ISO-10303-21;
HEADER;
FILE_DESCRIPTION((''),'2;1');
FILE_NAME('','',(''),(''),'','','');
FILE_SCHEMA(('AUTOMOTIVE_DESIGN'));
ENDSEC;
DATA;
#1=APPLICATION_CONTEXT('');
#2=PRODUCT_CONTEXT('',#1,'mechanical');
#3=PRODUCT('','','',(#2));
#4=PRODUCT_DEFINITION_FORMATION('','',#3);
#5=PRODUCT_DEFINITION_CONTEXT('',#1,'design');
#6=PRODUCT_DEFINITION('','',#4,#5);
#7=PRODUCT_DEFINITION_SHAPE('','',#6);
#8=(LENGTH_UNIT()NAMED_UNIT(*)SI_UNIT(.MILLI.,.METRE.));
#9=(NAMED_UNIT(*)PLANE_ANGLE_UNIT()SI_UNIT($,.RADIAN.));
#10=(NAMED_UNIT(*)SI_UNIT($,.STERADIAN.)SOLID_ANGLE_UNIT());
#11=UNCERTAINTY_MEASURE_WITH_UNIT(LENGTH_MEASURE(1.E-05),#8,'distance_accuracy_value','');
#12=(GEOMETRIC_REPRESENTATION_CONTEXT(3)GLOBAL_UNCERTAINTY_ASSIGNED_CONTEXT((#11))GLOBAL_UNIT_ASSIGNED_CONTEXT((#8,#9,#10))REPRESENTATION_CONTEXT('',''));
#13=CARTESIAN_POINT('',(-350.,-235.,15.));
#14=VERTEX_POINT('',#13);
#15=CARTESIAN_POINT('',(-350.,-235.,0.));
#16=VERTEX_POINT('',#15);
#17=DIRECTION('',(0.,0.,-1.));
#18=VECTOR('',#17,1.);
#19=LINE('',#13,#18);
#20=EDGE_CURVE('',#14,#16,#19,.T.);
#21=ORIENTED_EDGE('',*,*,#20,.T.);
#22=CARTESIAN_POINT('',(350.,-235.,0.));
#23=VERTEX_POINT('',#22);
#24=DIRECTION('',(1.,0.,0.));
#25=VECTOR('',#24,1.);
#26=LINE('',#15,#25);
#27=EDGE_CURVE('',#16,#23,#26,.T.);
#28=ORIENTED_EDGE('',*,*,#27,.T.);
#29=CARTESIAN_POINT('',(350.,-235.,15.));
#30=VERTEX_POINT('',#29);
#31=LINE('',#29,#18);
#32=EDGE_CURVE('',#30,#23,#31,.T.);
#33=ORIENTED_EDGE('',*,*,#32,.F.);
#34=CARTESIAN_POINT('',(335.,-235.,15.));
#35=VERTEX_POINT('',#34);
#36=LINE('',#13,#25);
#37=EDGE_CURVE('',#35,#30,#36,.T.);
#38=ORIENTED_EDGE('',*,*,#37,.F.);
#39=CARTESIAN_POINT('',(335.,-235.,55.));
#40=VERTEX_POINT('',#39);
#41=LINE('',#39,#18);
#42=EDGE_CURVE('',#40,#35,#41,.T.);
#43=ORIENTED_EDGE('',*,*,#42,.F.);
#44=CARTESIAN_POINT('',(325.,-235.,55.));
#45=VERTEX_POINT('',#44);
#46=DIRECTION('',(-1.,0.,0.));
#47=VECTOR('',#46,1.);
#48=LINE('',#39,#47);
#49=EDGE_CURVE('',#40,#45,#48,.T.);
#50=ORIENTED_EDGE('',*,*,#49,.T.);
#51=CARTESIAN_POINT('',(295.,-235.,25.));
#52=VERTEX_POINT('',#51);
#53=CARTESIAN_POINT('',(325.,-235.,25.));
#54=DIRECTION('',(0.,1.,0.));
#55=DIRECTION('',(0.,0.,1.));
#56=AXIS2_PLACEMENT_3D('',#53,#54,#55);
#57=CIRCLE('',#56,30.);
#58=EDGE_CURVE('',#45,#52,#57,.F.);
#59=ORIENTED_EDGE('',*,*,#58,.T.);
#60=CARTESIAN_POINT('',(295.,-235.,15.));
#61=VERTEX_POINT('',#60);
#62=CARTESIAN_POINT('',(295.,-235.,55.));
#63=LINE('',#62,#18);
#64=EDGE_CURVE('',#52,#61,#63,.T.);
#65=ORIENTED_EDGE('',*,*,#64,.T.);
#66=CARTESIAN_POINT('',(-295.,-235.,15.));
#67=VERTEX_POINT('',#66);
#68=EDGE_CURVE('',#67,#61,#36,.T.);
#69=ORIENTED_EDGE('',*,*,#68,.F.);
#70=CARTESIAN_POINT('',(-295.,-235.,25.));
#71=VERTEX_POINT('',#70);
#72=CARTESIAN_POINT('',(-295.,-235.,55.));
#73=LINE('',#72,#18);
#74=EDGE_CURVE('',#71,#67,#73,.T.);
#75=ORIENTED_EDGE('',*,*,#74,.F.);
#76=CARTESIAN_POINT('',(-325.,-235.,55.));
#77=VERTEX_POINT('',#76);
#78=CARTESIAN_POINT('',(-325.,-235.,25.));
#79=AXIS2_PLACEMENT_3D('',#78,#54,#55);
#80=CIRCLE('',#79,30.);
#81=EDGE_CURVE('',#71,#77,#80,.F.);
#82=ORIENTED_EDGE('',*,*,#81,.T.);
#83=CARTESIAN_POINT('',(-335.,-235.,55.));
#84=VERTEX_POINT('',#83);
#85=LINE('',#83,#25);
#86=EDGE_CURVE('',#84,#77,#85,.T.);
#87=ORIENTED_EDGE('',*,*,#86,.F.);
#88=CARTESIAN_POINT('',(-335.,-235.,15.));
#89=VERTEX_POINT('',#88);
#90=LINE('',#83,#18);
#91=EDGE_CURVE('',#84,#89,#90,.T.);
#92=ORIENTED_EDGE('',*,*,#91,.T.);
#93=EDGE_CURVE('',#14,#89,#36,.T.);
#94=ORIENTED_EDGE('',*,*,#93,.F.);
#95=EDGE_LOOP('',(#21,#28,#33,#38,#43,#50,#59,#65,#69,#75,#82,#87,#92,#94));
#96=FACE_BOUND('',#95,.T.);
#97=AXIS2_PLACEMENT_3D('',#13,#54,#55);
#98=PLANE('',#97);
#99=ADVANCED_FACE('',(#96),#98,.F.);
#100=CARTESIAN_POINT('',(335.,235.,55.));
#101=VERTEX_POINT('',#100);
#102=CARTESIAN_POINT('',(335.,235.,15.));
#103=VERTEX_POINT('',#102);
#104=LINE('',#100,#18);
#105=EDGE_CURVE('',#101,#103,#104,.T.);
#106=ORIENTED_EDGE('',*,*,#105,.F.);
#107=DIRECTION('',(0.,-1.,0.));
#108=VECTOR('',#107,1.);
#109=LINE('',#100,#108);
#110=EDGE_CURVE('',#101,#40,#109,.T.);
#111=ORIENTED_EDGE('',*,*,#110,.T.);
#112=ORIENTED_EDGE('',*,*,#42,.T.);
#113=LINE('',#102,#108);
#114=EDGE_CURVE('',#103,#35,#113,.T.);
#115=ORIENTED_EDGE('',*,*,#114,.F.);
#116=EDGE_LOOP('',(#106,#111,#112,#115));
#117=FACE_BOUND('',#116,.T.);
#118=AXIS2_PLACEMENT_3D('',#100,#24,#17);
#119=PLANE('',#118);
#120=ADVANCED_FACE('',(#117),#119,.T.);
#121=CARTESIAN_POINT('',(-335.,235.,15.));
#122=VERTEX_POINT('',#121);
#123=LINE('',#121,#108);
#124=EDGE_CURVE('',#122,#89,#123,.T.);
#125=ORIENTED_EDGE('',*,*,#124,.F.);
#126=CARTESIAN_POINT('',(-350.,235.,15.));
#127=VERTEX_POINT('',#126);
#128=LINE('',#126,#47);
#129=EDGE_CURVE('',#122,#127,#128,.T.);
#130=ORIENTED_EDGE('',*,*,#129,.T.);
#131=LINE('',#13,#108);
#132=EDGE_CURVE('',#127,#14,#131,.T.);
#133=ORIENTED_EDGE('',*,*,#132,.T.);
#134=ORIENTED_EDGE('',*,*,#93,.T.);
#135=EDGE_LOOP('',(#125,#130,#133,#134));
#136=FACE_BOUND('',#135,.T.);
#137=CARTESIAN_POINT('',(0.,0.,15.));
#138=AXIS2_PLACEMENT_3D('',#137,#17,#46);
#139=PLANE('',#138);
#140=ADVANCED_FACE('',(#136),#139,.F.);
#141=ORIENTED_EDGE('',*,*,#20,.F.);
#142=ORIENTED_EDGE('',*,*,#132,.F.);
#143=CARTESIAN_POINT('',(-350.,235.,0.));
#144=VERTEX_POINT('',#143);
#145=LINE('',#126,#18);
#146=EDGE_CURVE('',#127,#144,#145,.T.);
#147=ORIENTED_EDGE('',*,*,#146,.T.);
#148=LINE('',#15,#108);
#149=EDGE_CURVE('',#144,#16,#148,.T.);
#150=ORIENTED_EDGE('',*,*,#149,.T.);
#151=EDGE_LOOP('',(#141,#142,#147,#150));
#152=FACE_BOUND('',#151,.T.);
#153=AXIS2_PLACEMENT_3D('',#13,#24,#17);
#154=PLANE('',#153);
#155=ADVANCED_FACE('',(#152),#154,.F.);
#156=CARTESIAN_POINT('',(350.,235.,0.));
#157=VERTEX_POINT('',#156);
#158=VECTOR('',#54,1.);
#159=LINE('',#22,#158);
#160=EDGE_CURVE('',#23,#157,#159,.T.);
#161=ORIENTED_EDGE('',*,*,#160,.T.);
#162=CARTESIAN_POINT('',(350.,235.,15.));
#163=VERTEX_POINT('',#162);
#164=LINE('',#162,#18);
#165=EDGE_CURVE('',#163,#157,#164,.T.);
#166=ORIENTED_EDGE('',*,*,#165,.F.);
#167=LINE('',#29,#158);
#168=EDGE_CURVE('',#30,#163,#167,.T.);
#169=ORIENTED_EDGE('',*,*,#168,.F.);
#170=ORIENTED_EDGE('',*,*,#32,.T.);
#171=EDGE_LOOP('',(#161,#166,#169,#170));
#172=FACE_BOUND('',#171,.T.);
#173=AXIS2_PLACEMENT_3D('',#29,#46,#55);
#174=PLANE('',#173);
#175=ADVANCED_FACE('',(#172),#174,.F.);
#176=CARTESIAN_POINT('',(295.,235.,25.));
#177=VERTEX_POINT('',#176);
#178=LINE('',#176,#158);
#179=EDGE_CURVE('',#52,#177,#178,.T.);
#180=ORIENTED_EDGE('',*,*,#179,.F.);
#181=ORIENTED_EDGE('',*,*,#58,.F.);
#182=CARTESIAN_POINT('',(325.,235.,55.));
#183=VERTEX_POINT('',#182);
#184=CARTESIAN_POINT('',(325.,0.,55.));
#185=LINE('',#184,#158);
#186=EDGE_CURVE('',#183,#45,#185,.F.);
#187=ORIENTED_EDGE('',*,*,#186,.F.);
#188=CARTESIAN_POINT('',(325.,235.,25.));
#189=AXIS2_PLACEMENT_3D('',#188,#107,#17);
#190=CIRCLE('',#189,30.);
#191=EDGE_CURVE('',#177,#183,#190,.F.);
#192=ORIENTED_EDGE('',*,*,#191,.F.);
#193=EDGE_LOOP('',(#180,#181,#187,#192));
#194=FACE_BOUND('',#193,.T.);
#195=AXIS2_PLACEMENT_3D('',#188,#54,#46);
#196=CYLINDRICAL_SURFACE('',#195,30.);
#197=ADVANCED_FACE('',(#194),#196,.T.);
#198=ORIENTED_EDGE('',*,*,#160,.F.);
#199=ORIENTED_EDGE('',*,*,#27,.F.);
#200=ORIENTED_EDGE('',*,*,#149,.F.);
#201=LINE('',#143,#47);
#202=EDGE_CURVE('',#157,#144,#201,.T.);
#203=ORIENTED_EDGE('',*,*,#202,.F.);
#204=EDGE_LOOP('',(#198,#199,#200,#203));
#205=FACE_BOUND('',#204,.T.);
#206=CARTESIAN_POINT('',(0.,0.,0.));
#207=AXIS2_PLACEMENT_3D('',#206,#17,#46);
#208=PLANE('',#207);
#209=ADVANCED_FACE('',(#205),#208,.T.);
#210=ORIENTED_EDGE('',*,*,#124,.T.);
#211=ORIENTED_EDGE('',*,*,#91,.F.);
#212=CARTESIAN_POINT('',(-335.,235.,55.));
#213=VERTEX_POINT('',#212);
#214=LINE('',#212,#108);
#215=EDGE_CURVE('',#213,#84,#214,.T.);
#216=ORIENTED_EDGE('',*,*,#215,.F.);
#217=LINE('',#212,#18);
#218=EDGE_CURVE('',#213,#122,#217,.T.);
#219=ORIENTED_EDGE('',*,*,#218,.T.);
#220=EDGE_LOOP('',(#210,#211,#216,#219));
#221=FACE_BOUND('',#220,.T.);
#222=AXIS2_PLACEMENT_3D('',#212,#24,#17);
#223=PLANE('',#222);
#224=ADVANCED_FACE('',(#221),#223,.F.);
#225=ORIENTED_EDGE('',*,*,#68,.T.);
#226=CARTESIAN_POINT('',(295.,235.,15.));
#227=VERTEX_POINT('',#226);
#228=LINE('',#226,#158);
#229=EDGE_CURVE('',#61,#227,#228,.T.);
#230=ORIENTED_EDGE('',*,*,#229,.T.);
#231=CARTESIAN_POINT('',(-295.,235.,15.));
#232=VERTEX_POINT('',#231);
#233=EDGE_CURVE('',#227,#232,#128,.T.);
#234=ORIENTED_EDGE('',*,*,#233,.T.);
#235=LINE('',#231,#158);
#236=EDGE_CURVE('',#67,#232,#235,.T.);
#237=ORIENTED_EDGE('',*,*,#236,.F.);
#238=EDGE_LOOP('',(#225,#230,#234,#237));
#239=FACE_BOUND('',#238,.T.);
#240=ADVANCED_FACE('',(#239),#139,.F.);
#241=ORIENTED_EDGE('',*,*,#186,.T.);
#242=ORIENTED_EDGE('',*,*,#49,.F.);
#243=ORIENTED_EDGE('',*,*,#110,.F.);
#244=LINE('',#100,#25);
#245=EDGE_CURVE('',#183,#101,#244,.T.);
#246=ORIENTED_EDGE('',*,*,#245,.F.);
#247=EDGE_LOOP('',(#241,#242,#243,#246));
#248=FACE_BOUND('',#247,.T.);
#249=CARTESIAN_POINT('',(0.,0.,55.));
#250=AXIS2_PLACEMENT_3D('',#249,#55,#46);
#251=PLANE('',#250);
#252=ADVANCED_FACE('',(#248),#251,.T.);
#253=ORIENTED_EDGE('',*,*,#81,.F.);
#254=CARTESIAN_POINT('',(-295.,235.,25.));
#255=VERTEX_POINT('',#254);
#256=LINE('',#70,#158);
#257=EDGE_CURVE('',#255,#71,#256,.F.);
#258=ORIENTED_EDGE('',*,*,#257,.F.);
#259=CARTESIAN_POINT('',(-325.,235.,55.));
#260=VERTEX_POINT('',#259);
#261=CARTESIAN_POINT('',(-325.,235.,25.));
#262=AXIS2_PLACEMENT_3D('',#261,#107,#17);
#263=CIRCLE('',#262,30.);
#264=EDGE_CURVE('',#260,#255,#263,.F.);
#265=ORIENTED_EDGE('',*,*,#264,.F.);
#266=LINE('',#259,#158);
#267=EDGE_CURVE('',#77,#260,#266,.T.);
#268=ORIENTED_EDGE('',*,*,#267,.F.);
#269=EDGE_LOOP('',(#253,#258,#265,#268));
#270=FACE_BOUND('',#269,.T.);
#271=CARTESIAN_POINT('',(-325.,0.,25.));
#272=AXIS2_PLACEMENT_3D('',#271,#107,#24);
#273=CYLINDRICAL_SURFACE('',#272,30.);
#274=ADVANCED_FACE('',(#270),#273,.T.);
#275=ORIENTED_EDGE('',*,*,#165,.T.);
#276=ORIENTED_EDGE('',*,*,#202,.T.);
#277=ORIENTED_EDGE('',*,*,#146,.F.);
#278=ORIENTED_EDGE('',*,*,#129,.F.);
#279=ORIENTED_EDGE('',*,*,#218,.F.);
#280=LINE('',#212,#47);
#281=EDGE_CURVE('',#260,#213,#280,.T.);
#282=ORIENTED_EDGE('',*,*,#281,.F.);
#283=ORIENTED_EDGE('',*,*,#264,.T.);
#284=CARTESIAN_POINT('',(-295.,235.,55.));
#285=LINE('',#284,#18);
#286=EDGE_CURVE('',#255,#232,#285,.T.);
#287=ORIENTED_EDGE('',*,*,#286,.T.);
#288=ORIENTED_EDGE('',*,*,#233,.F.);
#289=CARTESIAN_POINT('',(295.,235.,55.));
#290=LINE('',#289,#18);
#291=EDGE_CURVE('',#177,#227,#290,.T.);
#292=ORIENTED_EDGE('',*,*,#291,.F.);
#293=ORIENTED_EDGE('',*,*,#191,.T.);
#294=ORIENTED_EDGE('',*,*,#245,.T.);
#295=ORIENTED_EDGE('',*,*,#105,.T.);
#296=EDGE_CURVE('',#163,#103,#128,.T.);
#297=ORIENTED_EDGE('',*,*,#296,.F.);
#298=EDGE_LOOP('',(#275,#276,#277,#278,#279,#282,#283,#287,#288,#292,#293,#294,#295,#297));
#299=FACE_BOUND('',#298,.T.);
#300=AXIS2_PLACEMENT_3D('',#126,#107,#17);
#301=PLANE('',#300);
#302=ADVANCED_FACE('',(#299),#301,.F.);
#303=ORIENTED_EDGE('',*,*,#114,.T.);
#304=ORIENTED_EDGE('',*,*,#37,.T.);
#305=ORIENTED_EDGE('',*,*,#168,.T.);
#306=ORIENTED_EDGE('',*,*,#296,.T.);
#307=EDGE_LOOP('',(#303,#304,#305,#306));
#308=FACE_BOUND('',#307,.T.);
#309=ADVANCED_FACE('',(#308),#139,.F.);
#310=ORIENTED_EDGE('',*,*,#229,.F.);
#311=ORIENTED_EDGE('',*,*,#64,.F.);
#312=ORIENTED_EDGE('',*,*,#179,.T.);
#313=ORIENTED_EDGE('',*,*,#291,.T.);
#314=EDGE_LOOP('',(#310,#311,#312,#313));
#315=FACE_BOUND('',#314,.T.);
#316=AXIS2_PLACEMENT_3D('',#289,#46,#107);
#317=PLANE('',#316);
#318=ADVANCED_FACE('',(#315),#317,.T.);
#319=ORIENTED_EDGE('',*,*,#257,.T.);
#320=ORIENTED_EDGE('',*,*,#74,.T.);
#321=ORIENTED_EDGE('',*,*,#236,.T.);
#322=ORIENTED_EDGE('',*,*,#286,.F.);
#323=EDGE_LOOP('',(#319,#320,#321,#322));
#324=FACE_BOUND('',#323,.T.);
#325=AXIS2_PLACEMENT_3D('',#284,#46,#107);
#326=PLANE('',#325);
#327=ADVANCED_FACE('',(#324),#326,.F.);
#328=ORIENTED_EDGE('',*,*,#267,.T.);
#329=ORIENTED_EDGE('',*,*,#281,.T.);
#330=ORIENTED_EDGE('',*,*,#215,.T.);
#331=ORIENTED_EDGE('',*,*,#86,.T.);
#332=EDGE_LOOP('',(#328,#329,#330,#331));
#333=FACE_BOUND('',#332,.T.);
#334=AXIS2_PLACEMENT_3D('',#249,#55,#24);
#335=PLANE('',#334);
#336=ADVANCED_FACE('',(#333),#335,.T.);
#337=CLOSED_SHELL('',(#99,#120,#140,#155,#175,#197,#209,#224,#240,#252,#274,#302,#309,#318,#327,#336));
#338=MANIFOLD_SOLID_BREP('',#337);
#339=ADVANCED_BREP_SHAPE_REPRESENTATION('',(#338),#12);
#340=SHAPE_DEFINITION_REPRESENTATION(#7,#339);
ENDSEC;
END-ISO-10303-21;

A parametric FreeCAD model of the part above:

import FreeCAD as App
import Part
import Sketcher
from FreeCAD import Vector
Q = App.Units.Quantity


def edges_at(feature, points):
    """Names of the edges that pass closest to the given points."""
    edges = feature.Shape.Edges
    near = lambda p: min(range(len(edges)), key=lambda i: edges[i].distToShape(Part.Vertex(*p))[0])
    return sorted({f"Edge{near(p) + 1}" for p in points})


def add_polygon(sketch, points):
    """Adds a closed chain of lines whose ends are joined by coincident constraints."""
    first, n = sketch.GeometryCount, len(points)
    for a, b in zip(points, points[1:] + points[:1]):
        sketch.addGeometry(Part.LineSegment(App.Vector(*a, 0), App.Vector(*b, 0)), False)
    for i in range(n):
        sketch.addConstraint(Sketcher.Constraint("Coincident", first + i, 2, first + (i + 1) % n, 1))

doc = App.newDocument("Part")
body = doc.addObject("PartDesign::Body", "Body")

# Sketch on XY plane
sketch1 = doc.addObject("Sketcher::SketchObject", "Sketch")
body.addObject(sketch1)
sketch1.AttachmentSupport = (doc.XY_Plane, [""])
sketch1.MapMode = "FlatFace"
add_polygon(sketch1, [(-350, 235), (-350, -235), (350, -235), (350, 235)])  # lines 0-3
sketch1.addConstraint(Sketcher.Constraint("Vertical", 0))
sketch1.addConstraint(Sketcher.Constraint("Horizontal", 1))
sketch1.addConstraint(Sketcher.Constraint("Vertical", 2))
sketch1.addConstraint(Sketcher.Constraint("Horizontal", 3))
sketch1.addConstraint(Sketcher.Constraint("Symmetric", 0, 2, 2, 2, -1, 1))
sketch1.addConstraint(Sketcher.Constraint("DistanceX", 1, 1, 1, 2, Q("700 mm")))
sketch1.addConstraint(Sketcher.Constraint("DistanceY", 0, 2, 0, 1, Q("470 mm")))
pad1 = doc.addObject("PartDesign::Pad", "Pad")
body.addObject(pad1)
pad1.Profile = sketch1
pad1.Length = 15

# Sketch on XY plane
sketch2 = doc.addObject("Sketcher::SketchObject", "Sketch001")
body.addObject(sketch2)
sketch2.AttachmentSupport = (doc.XY_Plane, [""])
sketch2.MapMode = "FlatFace"
sketch2.AttachmentOffset = App.Placement(Vector(0, 0, 15), App.Rotation())
add_polygon(sketch2, [(-335, 235), (-335, -235), (-295, -235), (-295, 235)])  # lines 0-3
sketch2.addConstraint(Sketcher.Constraint("Vertical", 0))
sketch2.addConstraint(Sketcher.Constraint("Horizontal", 1))
sketch2.addConstraint(Sketcher.Constraint("Vertical", 2))
sketch2.addConstraint(Sketcher.Constraint("Horizontal", 3))
sketch2.addConstraint(Sketcher.Constraint("DistanceX", 1, 1, 1, 2, Q("40 mm")))
sketch2.addConstraint(Sketcher.Constraint("DistanceY", 0, 2, 0, 1, Q("470 mm")))
sketch2.addConstraint(Sketcher.Constraint("DistanceX", 0, 2, -1, 1, Q("335 mm")))
sketch2.addConstraint(Sketcher.Constraint("DistanceY", 0, 2, -1, 1, Q("235 mm")))
pad2 = doc.addObject("PartDesign::Pad", "Pad001")
body.addObject(pad2)
pad2.Profile = sketch2
pad2.Length = 40
doc.recompute()

fillet = doc.addObject("PartDesign::Fillet", "Fillet")
body.addObject(fillet)
fillet.Base = (pad2, edges_at(pad2, [(-295, 0, 55)]))
fillet.Radius = 30
doc.recompute()

mirrored = doc.addObject("PartDesign::Mirrored", "Mirrored")
body.addObject(mirrored)
mirrored.Originals = [pad2]
mirrored.MirrorPlane = (doc.YZ_Plane, [""])
body.Tip = mirrored
doc.recompute()

fillet2 = doc.addObject("PartDesign::Fillet", "Fillet001")
body.addObject(fillet2)
fillet2.Base = (mirrored, edges_at(mirrored, [(295, 0, 55)]))
fillet2.Radius = 30

doc.recompute()
